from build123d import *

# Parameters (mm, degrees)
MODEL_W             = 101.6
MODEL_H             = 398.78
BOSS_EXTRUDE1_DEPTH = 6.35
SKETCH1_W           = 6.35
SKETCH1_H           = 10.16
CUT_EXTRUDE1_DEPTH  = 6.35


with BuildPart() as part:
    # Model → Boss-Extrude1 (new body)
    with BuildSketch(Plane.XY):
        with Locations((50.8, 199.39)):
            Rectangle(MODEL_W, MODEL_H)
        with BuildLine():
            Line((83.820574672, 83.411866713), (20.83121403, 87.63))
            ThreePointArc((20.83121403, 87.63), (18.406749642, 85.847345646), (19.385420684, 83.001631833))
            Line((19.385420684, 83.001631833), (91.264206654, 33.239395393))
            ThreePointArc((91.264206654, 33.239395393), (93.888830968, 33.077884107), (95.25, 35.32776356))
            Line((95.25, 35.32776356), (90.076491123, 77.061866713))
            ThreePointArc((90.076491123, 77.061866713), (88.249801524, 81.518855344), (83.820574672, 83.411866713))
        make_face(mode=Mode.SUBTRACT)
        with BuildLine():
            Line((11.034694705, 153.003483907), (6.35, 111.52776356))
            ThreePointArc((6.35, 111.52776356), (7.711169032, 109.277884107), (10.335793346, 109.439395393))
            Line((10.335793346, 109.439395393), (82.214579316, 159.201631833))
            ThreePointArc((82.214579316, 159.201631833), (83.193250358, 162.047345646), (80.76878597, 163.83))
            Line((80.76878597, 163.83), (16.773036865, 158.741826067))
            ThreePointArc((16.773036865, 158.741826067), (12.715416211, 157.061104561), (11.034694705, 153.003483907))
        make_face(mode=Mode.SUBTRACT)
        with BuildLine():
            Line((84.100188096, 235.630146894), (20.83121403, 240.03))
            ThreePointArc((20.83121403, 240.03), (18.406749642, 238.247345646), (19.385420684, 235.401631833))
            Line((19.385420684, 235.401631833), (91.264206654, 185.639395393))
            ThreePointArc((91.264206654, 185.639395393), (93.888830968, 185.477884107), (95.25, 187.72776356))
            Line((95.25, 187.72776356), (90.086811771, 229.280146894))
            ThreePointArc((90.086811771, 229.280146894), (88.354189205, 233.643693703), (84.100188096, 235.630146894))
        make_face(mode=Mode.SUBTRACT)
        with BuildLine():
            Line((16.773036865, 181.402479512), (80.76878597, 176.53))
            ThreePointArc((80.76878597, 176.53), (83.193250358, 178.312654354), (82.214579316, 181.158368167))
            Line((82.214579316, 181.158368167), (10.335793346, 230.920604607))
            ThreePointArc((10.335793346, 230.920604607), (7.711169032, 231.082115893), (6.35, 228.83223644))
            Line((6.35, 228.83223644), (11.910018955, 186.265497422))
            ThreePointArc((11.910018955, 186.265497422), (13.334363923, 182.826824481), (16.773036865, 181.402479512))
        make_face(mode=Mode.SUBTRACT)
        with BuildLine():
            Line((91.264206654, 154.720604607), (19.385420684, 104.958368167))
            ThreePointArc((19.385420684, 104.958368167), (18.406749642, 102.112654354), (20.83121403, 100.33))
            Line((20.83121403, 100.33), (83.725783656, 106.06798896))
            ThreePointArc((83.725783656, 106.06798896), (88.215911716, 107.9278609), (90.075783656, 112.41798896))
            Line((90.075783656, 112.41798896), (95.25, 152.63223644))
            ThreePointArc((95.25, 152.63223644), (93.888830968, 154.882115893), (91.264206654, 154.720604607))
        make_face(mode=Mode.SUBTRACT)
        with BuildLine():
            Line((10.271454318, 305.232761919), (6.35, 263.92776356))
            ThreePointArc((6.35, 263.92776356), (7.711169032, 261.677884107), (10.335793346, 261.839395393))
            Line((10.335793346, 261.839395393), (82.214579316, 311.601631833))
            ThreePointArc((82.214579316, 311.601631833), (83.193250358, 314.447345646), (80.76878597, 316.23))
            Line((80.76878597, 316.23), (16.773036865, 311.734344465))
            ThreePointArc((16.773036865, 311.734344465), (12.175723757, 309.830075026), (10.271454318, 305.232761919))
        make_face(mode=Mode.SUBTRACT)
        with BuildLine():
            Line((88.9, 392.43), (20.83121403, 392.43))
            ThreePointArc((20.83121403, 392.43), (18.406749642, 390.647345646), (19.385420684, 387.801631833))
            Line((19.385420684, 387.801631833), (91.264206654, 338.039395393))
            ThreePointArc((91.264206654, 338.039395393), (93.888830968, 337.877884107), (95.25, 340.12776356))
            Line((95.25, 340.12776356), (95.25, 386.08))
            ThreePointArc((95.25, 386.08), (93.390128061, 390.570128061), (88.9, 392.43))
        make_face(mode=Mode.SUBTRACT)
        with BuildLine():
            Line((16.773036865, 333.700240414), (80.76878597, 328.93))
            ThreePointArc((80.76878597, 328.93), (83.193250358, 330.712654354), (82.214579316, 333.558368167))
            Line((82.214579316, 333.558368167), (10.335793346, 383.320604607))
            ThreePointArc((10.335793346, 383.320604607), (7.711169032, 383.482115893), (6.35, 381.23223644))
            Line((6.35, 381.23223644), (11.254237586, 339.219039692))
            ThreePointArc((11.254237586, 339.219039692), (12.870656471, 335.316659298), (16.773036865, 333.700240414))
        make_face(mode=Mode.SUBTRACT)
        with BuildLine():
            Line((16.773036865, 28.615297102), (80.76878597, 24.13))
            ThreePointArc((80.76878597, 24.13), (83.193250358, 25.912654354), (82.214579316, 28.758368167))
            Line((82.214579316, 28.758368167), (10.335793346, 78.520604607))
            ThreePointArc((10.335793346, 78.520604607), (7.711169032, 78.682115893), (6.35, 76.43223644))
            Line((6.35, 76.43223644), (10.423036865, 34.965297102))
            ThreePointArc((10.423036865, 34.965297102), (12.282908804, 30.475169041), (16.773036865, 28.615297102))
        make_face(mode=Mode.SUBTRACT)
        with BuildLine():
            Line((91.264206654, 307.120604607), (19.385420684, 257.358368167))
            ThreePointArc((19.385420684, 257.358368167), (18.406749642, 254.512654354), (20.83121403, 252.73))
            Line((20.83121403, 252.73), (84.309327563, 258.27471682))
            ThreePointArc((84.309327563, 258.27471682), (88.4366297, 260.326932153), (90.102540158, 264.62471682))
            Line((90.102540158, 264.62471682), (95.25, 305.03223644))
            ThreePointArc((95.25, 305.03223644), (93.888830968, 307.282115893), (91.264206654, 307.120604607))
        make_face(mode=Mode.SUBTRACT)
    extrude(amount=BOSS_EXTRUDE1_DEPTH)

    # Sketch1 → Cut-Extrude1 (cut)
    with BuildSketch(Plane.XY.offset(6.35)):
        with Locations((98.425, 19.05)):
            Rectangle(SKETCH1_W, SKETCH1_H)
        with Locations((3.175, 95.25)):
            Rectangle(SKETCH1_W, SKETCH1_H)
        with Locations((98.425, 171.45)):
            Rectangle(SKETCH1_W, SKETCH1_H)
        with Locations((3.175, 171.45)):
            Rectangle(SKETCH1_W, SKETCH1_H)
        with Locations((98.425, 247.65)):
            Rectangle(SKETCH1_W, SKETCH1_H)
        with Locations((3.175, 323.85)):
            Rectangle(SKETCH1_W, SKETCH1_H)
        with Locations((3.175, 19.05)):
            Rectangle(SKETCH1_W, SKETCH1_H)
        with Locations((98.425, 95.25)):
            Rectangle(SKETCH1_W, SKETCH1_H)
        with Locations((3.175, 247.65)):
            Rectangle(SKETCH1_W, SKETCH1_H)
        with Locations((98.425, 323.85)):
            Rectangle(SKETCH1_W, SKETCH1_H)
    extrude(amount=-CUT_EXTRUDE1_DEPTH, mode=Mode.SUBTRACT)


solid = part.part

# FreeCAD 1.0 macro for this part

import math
import FreeCAD as App
import Part
import Sketcher

V = App.Vector
Q = App.Units.Quantity

doc = App.newDocument("Part")
body = doc.addObject("PartDesign::Body", "Body")

# Sketch on XY plane
sketch1 = body.newObject("Sketcher::SketchObject", "Sketch")
sketch1.AttachmentSupport = (doc.getObject("XY_Plane"), [""])
sketch1.MapMode = "FlatFace"
sketch1.addGeometry([
    Part.LineSegment(V(0, 398.78, 0), V(0, 0, 0)),  # 0
    Part.LineSegment(V(0, 0, 0), V(101.6, 0, 0)),  # 1
    Part.LineSegment(V(101.6, 0, 0), V(101.6, 398.78, 0)),  # 2
    Part.LineSegment(V(101.6, 398.78, 0), V(0, 398.78, 0)),  # 3
    Part.LineSegment(V(80.768786, 24.13, 0), V(16.773037, 28.615297, 0)),  # 4
    Part.ArcOfCircle(Part.Circle(V(16.773037, 34.965297, 0), V(0, 0, 1), 6.35), math.radians(180), math.radians(270)),  # 5
    Part.LineSegment(V(10.423037, 34.965297, 0), V(6.35, 76.432236, 0)),  # 6
    Part.ArcOfCircle(Part.Circle(V(8.89, 76.432236, 0), V(0, 0, 1), 2.54), math.radians(55.304846), math.radians(180)),  # 7
    Part.LineSegment(V(10.335793, 78.520605, 0), V(82.214579, 28.758368, 0)),  # 8
    Part.ArcOfCircle(Part.Circle(V(80.768786, 26.67, 0), V(0, 0, 1), 2.54), math.radians(-90), math.radians(55.304846)),  # 9
    Part.LineSegment(V(6.35, 111.527764, 0), V(11.034695, 153.003484, 0)),  # 10
    Part.ArcOfCircle(Part.Circle(V(16.773037, 153.003484, 0), V(0, 0, 1), 5.738342), math.radians(90), math.radians(180)),  # 11
    Part.LineSegment(V(16.773037, 158.741826, 0), V(80.768786, 163.83, 0)),  # 12
    Part.ArcOfCircle(Part.Circle(V(80.768786, 161.29, 0), V(0, 0, 1), 2.54), math.radians(-55.304846), math.radians(90)),  # 13
    Part.LineSegment(V(82.214579, 159.201632, 0), V(10.335793, 109.439395, 0)),  # 14
    Part.ArcOfCircle(Part.Circle(V(8.89, 111.527764, 0), V(0, 0, 1), 2.54), math.radians(180), math.radians(304.695154)),  # 15
    Part.LineSegment(V(80.768786, 176.53, 0), V(16.773037, 181.40248, 0)),  # 16
    Part.ArcOfCircle(Part.Circle(V(16.773037, 186.265497, 0), V(0, 0, 1), 4.863018), math.radians(180), math.radians(270)),  # 17
    Part.LineSegment(V(11.910019, 186.265497, 0), V(6.35, 228.832236, 0)),  # 18
    Part.ArcOfCircle(Part.Circle(V(8.89, 228.832236, 0), V(0, 0, 1), 2.54), math.radians(55.304846), math.radians(180)),  # 19
    Part.LineSegment(V(10.335793, 230.920605, 0), V(82.214579, 181.158368, 0)),  # 20
    Part.ArcOfCircle(Part.Circle(V(80.768786, 179.07, 0), V(0, 0, 1), 2.54), math.radians(-90), math.radians(55.304846)),  # 21
    Part.LineSegment(V(20.831214, 87.63, 0), V(83.820575, 83.411867, 0)),  # 22
    Part.ArcOfCircle(Part.Circle(V(83.725784, 77.061867, 0), V(0, 0, 1), 6.350707), math.radians(0), math.radians(89.144768)),  # 23
    Part.LineSegment(V(90.076491, 77.061867, 0), V(95.25, 35.327764, 0)),  # 24
    Part.ArcOfCircle(Part.Circle(V(92.71, 35.327764, 0), V(0, 0, 1), 2.54), math.radians(-124.695154), math.radians(0)),  # 25
    Part.LineSegment(V(91.264207, 33.239395, 0), V(19.385421, 83.001632, 0)),  # 26
    Part.ArcOfCircle(Part.Circle(V(20.831214, 85.09, 0), V(0, 0, 1), 2.54), math.radians(90), math.radians(235.304846)),  # 27
    Part.LineSegment(V(19.385421, 104.958368, 0), V(91.264207, 154.720605, 0)),  # 28
    Part.ArcOfCircle(Part.Circle(V(92.71, 152.632236, 0), V(0, 0, 1), 2.54), math.radians(0), math.radians(124.695154)),  # 29
    Part.LineSegment(V(95.25, 152.632236, 0), V(90.075784, 112.417989, 0)),  # 30
    Part.ArcOfCircle(Part.Circle(V(83.725784, 112.417989, 0), V(0, 0, 1), 6.35), math.radians(-90), math.radians(0)),  # 31
    Part.LineSegment(V(83.725784, 106.067989, 0), V(20.831214, 100.33, 0)),  # 32
    Part.ArcOfCircle(Part.Circle(V(20.831214, 102.87, 0), V(0, 0, 1), 2.54), math.radians(124.695154), math.radians(270)),  # 33
    Part.LineSegment(V(6.35, 263.927764, 0), V(10.271454, 305.232762, 0)),  # 34
    Part.ArcOfCircle(Part.Circle(V(16.773037, 305.232762, 0), V(0, 0, 1), 6.501583), math.radians(90), math.radians(180)),  # 35
    Part.LineSegment(V(16.773037, 311.734344, 0), V(80.768786, 316.23, 0)),  # 36
    Part.ArcOfCircle(Part.Circle(V(80.768786, 313.69, 0), V(0, 0, 1), 2.54), math.radians(-55.304846), math.radians(90)),  # 37
    Part.LineSegment(V(82.214579, 311.601632, 0), V(10.335793, 261.839395, 0)),  # 38
    Part.ArcOfCircle(Part.Circle(V(8.89, 263.927764, 0), V(0, 0, 1), 2.54), math.radians(180), math.radians(304.695154)),  # 39
    Part.LineSegment(V(80.768786, 328.93, 0), V(16.773037, 333.70024, 0)),  # 40
    Part.ArcOfCircle(Part.Circle(V(16.773037, 339.21904, 0), V(0, 0, 1), 5.518799), math.radians(180), math.radians(270)),  # 41
    Part.LineSegment(V(11.254238, 339.21904, 0), V(6.35, 381.232236, 0)),  # 42
    Part.ArcOfCircle(Part.Circle(V(8.89, 381.232236, 0), V(0, 0, 1), 2.54), math.radians(55.304846), math.radians(180)),  # 43
    Part.LineSegment(V(10.335793, 383.320605, 0), V(82.214579, 333.558368, 0)),  # 44
    Part.ArcOfCircle(Part.Circle(V(80.768786, 331.47, 0), V(0, 0, 1), 2.54), math.radians(-90), math.radians(55.304846)),  # 45
    Part.LineSegment(V(20.831214, 240.03, 0), V(84.100188, 235.630147, 0)),  # 46
    Part.ArcOfCircle(Part.Circle(V(83.725784, 229.280147, 0), V(0, 0, 1), 6.361028), math.radians(0), math.radians(86.625671)),  # 47
    Part.LineSegment(V(90.086812, 229.280147, 0), V(95.25, 187.727764, 0)),  # 48
    Part.ArcOfCircle(Part.Circle(V(92.71, 187.727764, 0), V(0, 0, 1), 2.54), math.radians(-124.695154), math.radians(0)),  # 49
    Part.LineSegment(V(91.264207, 185.639395, 0), V(19.385421, 235.401632, 0)),  # 50
    Part.ArcOfCircle(Part.Circle(V(20.831214, 237.49, 0), V(0, 0, 1), 2.54), math.radians(90), math.radians(235.304846)),  # 51
    Part.LineSegment(V(19.385421, 257.358368, 0), V(91.264207, 307.120605, 0)),  # 52
    Part.ArcOfCircle(Part.Circle(V(92.71, 305.032236, 0), V(0, 0, 1), 2.54), math.radians(0), math.radians(124.695154)),  # 53
    Part.LineSegment(V(95.25, 305.032236, 0), V(90.10254, 264.624717, 0)),  # 54
    Part.ArcOfCircle(Part.Circle(V(83.725784, 264.624717, 0), V(0, 0, 1), 6.376757), math.radians(-84.749455), math.radians(0)),  # 55
    Part.LineSegment(V(84.309328, 258.274717, 0), V(20.831214, 252.73, 0)),  # 56
    Part.ArcOfCircle(Part.Circle(V(20.831214, 255.27, 0), V(0, 0, 1), 2.54), math.radians(124.695154), math.radians(270)),  # 57
    Part.LineSegment(V(20.831214, 392.43, 0), V(88.9, 392.43, 0)),  # 58
    Part.ArcOfCircle(Part.Circle(V(88.9, 386.08, 0), V(0, 0, 1), 6.35), math.radians(0), math.radians(90)),  # 59
    Part.LineSegment(V(95.25, 386.08, 0), V(95.25, 340.127764, 0)),  # 60
    Part.ArcOfCircle(Part.Circle(V(92.71, 340.127764, 0), V(0, 0, 1), 2.54), math.radians(-124.695154), math.radians(0)),  # 61
    Part.LineSegment(V(91.264207, 338.039395, 0), V(19.385421, 387.801632, 0)),  # 62
    Part.ArcOfCircle(Part.Circle(V(20.831214, 389.89, 0), V(0, 0, 1), 2.54), math.radians(90), math.radians(235.304846)),  # 63
], False)
sketch1.addConstraint([
    Sketcher.Constraint("Coincident", 0, 2, 1, 1),
    Sketcher.Constraint("Coincident", 1, 2, 2, 1),
    Sketcher.Constraint("Coincident", 2, 2, 3, 1),
    Sketcher.Constraint("Coincident", 3, 2, 0, 1),
    Sketcher.Constraint("Coincident", 4, 2, 5, 2),
    Sketcher.Constraint("Coincident", 5, 1, 6, 1),
    Sketcher.Constraint("Coincident", 6, 2, 7, 2),
    Sketcher.Constraint("Tangent", 7, 1, 8, 1),
    Sketcher.Constraint("Tangent", 8, 2, 9, 2),
    Sketcher.Constraint("Coincident", 9, 1, 4, 1),
    Sketcher.Constraint("Coincident", 10, 2, 11, 2),
    Sketcher.Constraint("Coincident", 11, 1, 12, 1),
    Sketcher.Constraint("Coincident", 12, 2, 13, 2),
    Sketcher.Constraint("Tangent", 13, 1, 14, 1),
    Sketcher.Constraint("Tangent", 14, 2, 15, 2),
    Sketcher.Constraint("Coincident", 15, 1, 10, 1),
    Sketcher.Constraint("Coincident", 16, 2, 17, 2),
    Sketcher.Constraint("Coincident", 17, 1, 18, 1),
    Sketcher.Constraint("Coincident", 18, 2, 19, 2),
    Sketcher.Constraint("Tangent", 19, 1, 20, 1),
    Sketcher.Constraint("Tangent", 20, 2, 21, 2),
    Sketcher.Constraint("Coincident", 21, 1, 16, 1),
    Sketcher.Constraint("Coincident", 22, 2, 23, 2),
    Sketcher.Constraint("Coincident", 23, 1, 24, 1),
    Sketcher.Constraint("Coincident", 24, 2, 25, 2),
    Sketcher.Constraint("Tangent", 25, 1, 26, 1),
    Sketcher.Constraint("Tangent", 26, 2, 27, 2),
    Sketcher.Constraint("Coincident", 27, 1, 22, 1),
    Sketcher.Constraint("Tangent", 28, 2, 29, 2),
    Sketcher.Constraint("Coincident", 29, 1, 30, 1),
    Sketcher.Constraint("Coincident", 30, 2, 31, 2),
    Sketcher.Constraint("Coincident", 31, 1, 32, 1),
    Sketcher.Constraint("Coincident", 32, 2, 33, 2),
    Sketcher.Constraint("Tangent", 33, 1, 28, 1),
    Sketcher.Constraint("Coincident", 34, 2, 35, 2),
    Sketcher.Constraint("Coincident", 35, 1, 36, 1),
    Sketcher.Constraint("Coincident", 36, 2, 37, 2),
    Sketcher.Constraint("Tangent", 37, 1, 38, 1),
    Sketcher.Constraint("Tangent", 38, 2, 39, 2),
    Sketcher.Constraint("Coincident", 39, 1, 34, 1),
    Sketcher.Constraint("Coincident", 40, 2, 41, 2),
    Sketcher.Constraint("Coincident", 41, 1, 42, 1),
    Sketcher.Constraint("Coincident", 42, 2, 43, 2),
    Sketcher.Constraint("Tangent", 43, 1, 44, 1),
    Sketcher.Constraint("Tangent", 44, 2, 45, 2),
    Sketcher.Constraint("Coincident", 45, 1, 40, 1),
    Sketcher.Constraint("Coincident", 46, 2, 47, 2),
    Sketcher.Constraint("Coincident", 47, 1, 48, 1),
    Sketcher.Constraint("Coincident", 48, 2, 49, 2),
    Sketcher.Constraint("Tangent", 49, 1, 50, 1),
    Sketcher.Constraint("Tangent", 50, 2, 51, 2),
    Sketcher.Constraint("Coincident", 51, 1, 46, 1),
    Sketcher.Constraint("Tangent", 52, 2, 53, 2),
    Sketcher.Constraint("Coincident", 53, 1, 54, 1),
    Sketcher.Constraint("Coincident", 54, 2, 55, 2),
    Sketcher.Constraint("Coincident", 55, 1, 56, 1),
    Sketcher.Constraint("Coincident", 56, 2, 57, 2),
    Sketcher.Constraint("Tangent", 57, 1, 52, 1),
    Sketcher.Constraint("Tangent", 58, 2, 59, 2),
    Sketcher.Constraint("Tangent", 59, 1, 60, 1),
    Sketcher.Constraint("Tangent", 60, 2, 61, 2),
    Sketcher.Constraint("Tangent", 61, 1, 62, 1),
    Sketcher.Constraint("Tangent", 62, 2, 63, 2),
    Sketcher.Constraint("Tangent", 63, 1, 58, 1),
    Sketcher.Constraint("Vertical", 0),
    Sketcher.Constraint("Horizontal", 1),
    Sketcher.Constraint("Vertical", 2),
    Sketcher.Constraint("Horizontal", 3),
    Sketcher.Constraint("Horizontal", 58),
    Sketcher.Constraint("Vertical", 60),
    Sketcher.Constraint("Coincident", 0, 2, -1, 1),
    Sketcher.Constraint("Equal", 7, 9),
    Sketcher.Constraint("Equal", 9, 13),
    Sketcher.Constraint("Equal", 13, 15),
    Sketcher.Constraint("Equal", 15, 19),
    Sketcher.Constraint("Equal", 19, 21),
    Sketcher.Constraint("Equal", 21, 25),
    Sketcher.Constraint("Equal", 25, 27),
    Sketcher.Constraint("Equal", 27, 29),
    Sketcher.Constraint("Equal", 5, 31),
    Sketcher.Constraint("Equal", 29, 33),
    Sketcher.Constraint("Equal", 33, 37),
    Sketcher.Constraint("Equal", 37, 39),
    Sketcher.Constraint("Equal", 39, 43),
    Sketcher.Constraint("Equal", 43, 45),
    Sketcher.Constraint("Equal", 45, 49),
    Sketcher.Constraint("Equal", 49, 51),
    Sketcher.Constraint("Equal", 51, 53),
    Sketcher.Constraint("Equal", 53, 57),
    Sketcher.Constraint("Equal", 31, 59),
    Sketcher.Constraint("Equal", 57, 61),
    Sketcher.Constraint("Equal", 61, 63),
    Sketcher.Constraint("Parallel", 8, 20),
    Sketcher.Constraint("Parallel", 20, 26),
    Sketcher.Constraint("Parallel", 14, 28),
    Sketcher.Constraint("Parallel", 28, 38),
    Sketcher.Constraint("Parallel", 26, 44),
    Sketcher.Constraint("Parallel", 44, 50),
    Sketcher.Constraint("Parallel", 38, 52),
    Sketcher.Constraint("Parallel", 50, 62),
    Sketcher.Constraint("Horizontal", 7, 3, 6, 2),
    Sketcher.Constraint("Horizontal", 11, 3, 10, 2),
    Sketcher.Constraint("Horizontal", 19, 3, 18, 2),
    Sketcher.Constraint("Horizontal", 25, 3, 24, 2),
    Sketcher.Constraint("Horizontal", 31, 3, 30, 2),
    Sketcher.Constraint("Horizontal", 35, 3, 34, 2),
    Sketcher.Constraint("Horizontal", 43, 3, 42, 2),
    Sketcher.Constraint("Horizontal", 49, 3, 48, 2),
    Sketcher.Constraint("Horizontal", 55, 3, 54, 2),
    Sketcher.Constraint("Vertical", 5, 3, 11, 3),
    Sketcher.Constraint("Vertical", 9, 3, 13, 3),
    Sketcher.Constraint("Vertical", 7, 3, 15, 3),
    Sketcher.Constraint("Vertical", 11, 3, 17, 3),
    Sketcher.Constraint("Vertical", 15, 3, 19, 3),
    Sketcher.Constraint("Vertical", 13, 3, 21, 3),
    Sketcher.Constraint("Vertical", 25, 3, 29, 3),
    Sketcher.Constraint("Vertical", 23, 3, 31, 3),
    Sketcher.Constraint("Vertical", 27, 3, 33, 3),
    Sketcher.Constraint("Vertical", 17, 3, 35, 3),
    Sketcher.Constraint("Vertical", 21, 3, 37, 3),
    Sketcher.Constraint("Vertical", 19, 3, 39, 3),
    Sketcher.Constraint("Vertical", 35, 3, 41, 3),
    Sketcher.Constraint("Vertical", 39, 3, 43, 3),
    Sketcher.Constraint("Vertical", 37, 3, 45, 3),
    Sketcher.Constraint("Vertical", 31, 3, 47, 3),
    Sketcher.Constraint("Vertical", 29, 3, 49, 3),
    Sketcher.Constraint("Vertical", 33, 3, 51, 3),
    Sketcher.Constraint("Vertical", 49, 3, 53, 3),
    Sketcher.Constraint("Vertical", 47, 3, 55, 3),
    Sketcher.Constraint("Vertical", 51, 3, 57, 3),
    Sketcher.Constraint("Vertical", 53, 3, 61, 3),
    Sketcher.Constraint("Vertical", 57, 3, 63, 3),
    Sketcher.Constraint("Vertical", 41, 3, 4, 2),
    Sketcher.Constraint("Vertical", 45, 3, 9, 1),
    Sketcher.Constraint("Vertical", 4, 2, 11, 1),
    Sketcher.Constraint("Vertical", 9, 1, 12, 2),
    Sketcher.Constraint("Vertical", 8, 2, 13, 1),
    Sketcher.Constraint("Vertical", 11, 1, 16, 2),
    Sketcher.Constraint("Vertical", 12, 2, 21, 1),
    Sketcher.Constraint("Vertical", 63, 3, 27, 1),
    Sketcher.Constraint("Vertical", 55, 3, 31, 1),
    Sketcher.Constraint("Vertical", 27, 1, 32, 2),
    Sketcher.Constraint("Vertical", 16, 2, 35, 1),
    Sketcher.Constraint("Vertical", 21, 1, 36, 2),
    Sketcher.Constraint("Vertical", 35, 1, 40, 2),
    Sketcher.Constraint("Vertical", 36, 2, 45, 1),
    Sketcher.Constraint("Vertical", 32, 2, 51, 1),
    Sketcher.Constraint("Vertical", 51, 1, 56, 2),
    Sketcher.Constraint("Equal", 20, 26),
    Sketcher.Constraint("Radius", 7, Q("0.1 in")),
    Sketcher.Constraint("DistanceX", 1, 1, 1, 2, Q("4 in")),
    Sketcher.Constraint("Radius", 5, Q("0.25 in")),
    Sketcher.Constraint("DistanceY", 0, 2, 0, 1, Q("15.7 in")),
    Sketcher.Constraint("DistanceX", -1, 1, 59, 3, Q("3.5 in")),
    Sketcher.Constraint("DistanceY", -1, 1, 59, 3, Q("15.2 in")),
    Sketcher.Constraint("DistanceX", -1, 1, 7, 3, Q("0.35 in")),
    Sketcher.Constraint("DistanceY", -1, 1, 9, 3, Q("1.05 in")),
    Sketcher.Constraint("DistanceY", -1, 1, 13, 3, Q("6.35 in")),
    Sketcher.Constraint("DistanceY", -1, 1, 21, 3, Q("7.05 in")),
    Sketcher.Constraint("DistanceY", -1, 1, 27, 3, Q("3.35 in")),
    Sketcher.Constraint("DistanceY", -1, 1, 33, 3, Q("4.05 in")),
    Sketcher.Constraint("DistanceY", -1, 1, 37, 3, Q("12.35 in")),
    Sketcher.Constraint("DistanceY", -1, 1, 45, 3, Q("13.05 in")),
    Sketcher.Constraint("DistanceY", -1, 1, 51, 3, Q("9.35 in")),
    Sketcher.Constraint("DistanceY", -1, 1, 57, 3, Q("10.05 in")),
    Sketcher.Constraint("Radius", 41, 5.518799),
    Sketcher.Constraint("Radius", 47, 6.361028),
    Sketcher.Constraint("Radius", 11, 5.738342),
    Sketcher.Constraint("Radius", 17, 4.863018),
    Sketcher.Constraint("Radius", 23, 6.350707),
    Sketcher.Constraint("Radius", 35, 6.501583),
    Sketcher.Constraint("Radius", 55, 6.376757),
    Sketcher.Constraint("Distance", 4, 64.152738),
    Sketcher.Constraint("Distance", 8, 87.423338),
    Sketcher.Constraint("Distance", 10, 41.739451),
    Sketcher.Constraint("Distance", 16, 64.18097),
    Sketcher.Constraint("Distance", 22, 63.130438),
    Sketcher.Constraint("Distance", 32, 63.155771),
    Sketcher.Constraint("Distance", 34, 41.49073),
    Sketcher.Constraint("Distance", 40, 64.17329),
    Sketcher.Constraint("DistanceX", 58, 1, 58, 2, 68.068786),
    Sketcher.Constraint("DistanceY", -1, 1, 31, 3, 112.417989),
    Sketcher.Constraint("DistanceY", -1, 1, 35, 3, 305.232762),
    Sketcher.Constraint("DistanceY", -1, 1, 41, 3, 339.21904),
    Sketcher.Constraint("DistanceY", -1, 1, 41, 1, 339.21904),
    Sketcher.Constraint("DistanceX", -1, 1, 46, 2, 84.100188),
    Sketcher.Constraint("Distance", 6, 41.666494),
    Sketcher.Constraint("Distance", 12, 64.197706),
    Sketcher.Constraint("Distance", 18, 42.928325),
    Sketcher.Constraint("Distance", 24, 42.053544),
    Sketcher.Constraint("Distance", 30, 40.545755),
    Sketcher.Constraint("Distance", 46, 63.421777),
    Sketcher.Constraint("Distance", 48, 41.871937),
    Sketcher.Constraint("Distance", 54, 40.734064),
    Sketcher.Constraint("Distance", 56, 63.719815),
    Sketcher.Constraint("DistanceY", -1, 1, 23, 3, 77.061867),
    Sketcher.Constraint("DistanceY", -1, 1, 55, 3, 264.624717),
])
pad1 = body.newObject("PartDesign::Pad", "Pad")
pad1.Profile = sketch1
pad1.Length = Q("0.25 in")

# Sketch on XY plane
sketch2 = body.newObject("Sketcher::SketchObject", "Sketch001")
sketch2.AttachmentSupport = (doc.getObject("XY_Plane"), [""])
sketch2.MapMode = "FlatFace"
sketch2.AttachmentOffset = App.Placement(V(0, 0, 0.25 * 25.4), App.Rotation())
sketch2.addGeometry([
    Part.LineSegment(V(95.25, 24.13, 0), V(95.25, 13.97, 0)),  # 0
    Part.LineSegment(V(95.25, 13.97, 0), V(101.6, 13.97, 0)),  # 1
    Part.LineSegment(V(101.6, 13.97, 0), V(101.6, 24.13, 0)),  # 2
    Part.LineSegment(V(101.6, 24.13, 0), V(95.25, 24.13, 0)),  # 3
    Part.LineSegment(V(0, 100.33, 0), V(0, 90.17, 0)),  # 4
    Part.LineSegment(V(0, 90.17, 0), V(6.35, 90.17, 0)),  # 5
    Part.LineSegment(V(6.35, 90.17, 0), V(6.35, 100.33, 0)),  # 6
    Part.LineSegment(V(6.35, 100.33, 0), V(0, 100.33, 0)),  # 7
    Part.LineSegment(V(95.25, 176.53, 0), V(95.25, 166.37, 0)),  # 8
    Part.LineSegment(V(95.25, 166.37, 0), V(101.6, 166.37, 0)),  # 9
    Part.LineSegment(V(101.6, 166.37, 0), V(101.6, 176.53, 0)),  # 10
    Part.LineSegment(V(101.6, 176.53, 0), V(95.25, 176.53, 0)),  # 11
    Part.LineSegment(V(0, 176.53, 0), V(0, 166.37, 0)),  # 12
    Part.LineSegment(V(0, 166.37, 0), V(6.35, 166.37, 0)),  # 13
    Part.LineSegment(V(6.35, 166.37, 0), V(6.35, 176.53, 0)),  # 14
    Part.LineSegment(V(6.35, 176.53, 0), V(0, 176.53, 0)),  # 15
    Part.LineSegment(V(95.25, 252.73, 0), V(95.25, 242.57, 0)),  # 16
    Part.LineSegment(V(95.25, 242.57, 0), V(101.6, 242.57, 0)),  # 17
    Part.LineSegment(V(101.6, 242.57, 0), V(101.6, 252.73, 0)),  # 18
    Part.LineSegment(V(101.6, 252.73, 0), V(95.25, 252.73, 0)),  # 19
    Part.LineSegment(V(0, 328.93, 0), V(0, 318.77, 0)),  # 20
    Part.LineSegment(V(0, 318.77, 0), V(6.35, 318.77, 0)),  # 21
    Part.LineSegment(V(6.35, 318.77, 0), V(6.35, 328.93, 0)),  # 22
    Part.LineSegment(V(6.35, 328.93, 0), V(0, 328.93, 0)),  # 23
    Part.LineSegment(V(0, 24.13, 0), V(0, 13.97, 0)),  # 24
    Part.LineSegment(V(0, 13.97, 0), V(6.35, 13.97, 0)),  # 25
    Part.LineSegment(V(6.35, 13.97, 0), V(6.35, 24.13, 0)),  # 26
    Part.LineSegment(V(6.35, 24.13, 0), V(0, 24.13, 0)),  # 27
    Part.LineSegment(V(95.25, 100.33, 0), V(95.25, 90.17, 0)),  # 28
    Part.LineSegment(V(95.25, 90.17, 0), V(101.6, 90.17, 0)),  # 29
    Part.LineSegment(V(101.6, 90.17, 0), V(101.6, 100.33, 0)),  # 30
    Part.LineSegment(V(101.6, 100.33, 0), V(95.25, 100.33, 0)),  # 31
    Part.LineSegment(V(0, 252.73, 0), V(0, 242.57, 0)),  # 32
    Part.LineSegment(V(0, 242.57, 0), V(6.35, 242.57, 0)),  # 33
    Part.LineSegment(V(6.35, 242.57, 0), V(6.35, 252.73, 0)),  # 34
    Part.LineSegment(V(6.35, 252.73, 0), V(0, 252.73, 0)),  # 35
    Part.LineSegment(V(95.25, 328.93, 0), V(95.25, 318.77, 0)),  # 36
    Part.LineSegment(V(95.25, 318.77, 0), V(101.6, 318.77, 0)),  # 37
    Part.LineSegment(V(101.6, 318.77, 0), V(101.6, 328.93, 0)),  # 38
    Part.LineSegment(V(101.6, 328.93, 0), V(95.25, 328.93, 0)),  # 39
], False)
sketch2.addConstraint([
    Sketcher.Constraint("Coincident", 0, 2, 1, 1),
    Sketcher.Constraint("Coincident", 1, 2, 2, 1),
    Sketcher.Constraint("Coincident", 2, 2, 3, 1),
    Sketcher.Constraint("Coincident", 3, 2, 0, 1),
    Sketcher.Constraint("Coincident", 4, 2, 5, 1),
    Sketcher.Constraint("Coincident", 5, 2, 6, 1),
    Sketcher.Constraint("Coincident", 6, 2, 7, 1),
    Sketcher.Constraint("Coincident", 7, 2, 4, 1),
    Sketcher.Constraint("Coincident", 8, 2, 9, 1),
    Sketcher.Constraint("Coincident", 9, 2, 10, 1),
    Sketcher.Constraint("Coincident", 10, 2, 11, 1),
    Sketcher.Constraint("Coincident", 11, 2, 8, 1),
    Sketcher.Constraint("Coincident", 12, 2, 13, 1),
    Sketcher.Constraint("Coincident", 13, 2, 14, 1),
    Sketcher.Constraint("Coincident", 14, 2, 15, 1),
    Sketcher.Constraint("Coincident", 15, 2, 12, 1),
    Sketcher.Constraint("Coincident", 16, 2, 17, 1),
    Sketcher.Constraint("Coincident", 17, 2, 18, 1),
    Sketcher.Constraint("Coincident", 18, 2, 19, 1),
    Sketcher.Constraint("Coincident", 19, 2, 16, 1),
    Sketcher.Constraint("Coincident", 20, 2, 21, 1),
    Sketcher.Constraint("Coincident", 21, 2, 22, 1),
    Sketcher.Constraint("Coincident", 22, 2, 23, 1),
    Sketcher.Constraint("Coincident", 23, 2, 20, 1),
    Sketcher.Constraint("Coincident", 24, 2, 25, 1),
    Sketcher.Constraint("Coincident", 25, 2, 26, 1),
    Sketcher.Constraint("Coincident", 26, 2, 27, 1),
    Sketcher.Constraint("Coincident", 27, 2, 24, 1),
    Sketcher.Constraint("Coincident", 28, 2, 29, 1),
    Sketcher.Constraint("Coincident", 29, 2, 30, 1),
    Sketcher.Constraint("Coincident", 30, 2, 31, 1),
    Sketcher.Constraint("Coincident", 31, 2, 28, 1),
    Sketcher.Constraint("Coincident", 32, 2, 33, 1),
    Sketcher.Constraint("Coincident", 33, 2, 34, 1),
    Sketcher.Constraint("Coincident", 34, 2, 35, 1),
    Sketcher.Constraint("Coincident", 35, 2, 32, 1),
    Sketcher.Constraint("Coincident", 36, 2, 37, 1),
    Sketcher.Constraint("Coincident", 37, 2, 38, 1),
    Sketcher.Constraint("Coincident", 38, 2, 39, 1),
    Sketcher.Constraint("Coincident", 39, 2, 36, 1),
    Sketcher.Constraint("Vertical", 0),
    Sketcher.Constraint("Horizontal", 1),
    Sketcher.Constraint("Vertical", 2),
    Sketcher.Constraint("Horizontal", 3),
    Sketcher.Constraint("Vertical", 4),
    Sketcher.Constraint("Horizontal", 5),
    Sketcher.Constraint("Vertical", 6),
    Sketcher.Constraint("Horizontal", 7),
    Sketcher.Constraint("Vertical", 8),
    Sketcher.Constraint("Horizontal", 9),
    Sketcher.Constraint("Vertical", 10),
    Sketcher.Constraint("Horizontal", 11),
    Sketcher.Constraint("Vertical", 12),
    Sketcher.Constraint("Horizontal", 13),
    Sketcher.Constraint("Vertical", 14),
    Sketcher.Constraint("Horizontal", 15),
    Sketcher.Constraint("Vertical", 16),
    Sketcher.Constraint("Horizontal", 17),
    Sketcher.Constraint("Vertical", 18),
    Sketcher.Constraint("Horizontal", 19),
    Sketcher.Constraint("Vertical", 20),
    Sketcher.Constraint("Horizontal", 21),
    Sketcher.Constraint("Vertical", 22),
    Sketcher.Constraint("Horizontal", 23),
    Sketcher.Constraint("Vertical", 24),
    Sketcher.Constraint("Horizontal", 25),
    Sketcher.Constraint("Vertical", 26),
    Sketcher.Constraint("Horizontal", 27),
    Sketcher.Constraint("Vertical", 28),
    Sketcher.Constraint("Horizontal", 29),
    Sketcher.Constraint("Vertical", 30),
    Sketcher.Constraint("Horizontal", 31),
    Sketcher.Constraint("Vertical", 32),
    Sketcher.Constraint("Horizontal", 33),
    Sketcher.Constraint("Vertical", 34),
    Sketcher.Constraint("Horizontal", 35),
    Sketcher.Constraint("Vertical", 36),
    Sketcher.Constraint("Horizontal", 37),
    Sketcher.Constraint("Vertical", 38),
    Sketcher.Constraint("Horizontal", 39),
    Sketcher.Constraint("PointOnObject", 4, 2, -2),
    Sketcher.Constraint("PointOnObject", 12, 2, -2),
    Sketcher.Constraint("PointOnObject", 20, 2, -2),
    Sketcher.Constraint("PointOnObject", 24, 2, -2),
    Sketcher.Constraint("PointOnObject", 32, 2, -2),
    Sketcher.Constraint("Horizontal", 9, 2, 12, 2),
    Sketcher.Constraint("Horizontal", 11, 2, 14, 2),
    Sketcher.Constraint("Horizontal", 1, 2, 24, 2),
    Sketcher.Constraint("Horizontal", 3, 2, 26, 2),
    Sketcher.Constraint("Horizontal", 5, 2, 28, 2),
    Sketcher.Constraint("Horizontal", 7, 2, 30, 2),
    Sketcher.Constraint("Horizontal", 17, 2, 32, 2),
    Sketcher.Constraint("Horizontal", 19, 2, 34, 2),
    Sketcher.Constraint("Horizontal", 21, 2, 36, 2),
    Sketcher.Constraint("Horizontal", 23, 2, 38, 2),
    Sketcher.Constraint("Vertical", 3, 2, 8, 2),
    Sketcher.Constraint("Vertical", 2, 2, 9, 2),
    Sketcher.Constraint("Vertical", 6, 2, 13, 2),
    Sketcher.Constraint("Vertical", 11, 2, 16, 2),
    Sketcher.Constraint("Vertical", 10, 2, 17, 2),
    Sketcher.Constraint("Vertical", 14, 2, 21, 2),
    Sketcher.Constraint("Vertical", 22, 2, 25, 2),
    Sketcher.Constraint("Vertical", 19, 2, 28, 2),
    Sketcher.Constraint("Vertical", 18, 2, 29, 2),
    Sketcher.Constraint("Vertical", 26, 2, 33, 2),
    Sketcher.Constraint("Vertical", 31, 2, 36, 2),
    Sketcher.Constraint("Vertical", 30, 2, 37, 2),
    Sketcher.Constraint("Equal", 3, 5),
    Sketcher.Constraint("Equal", 2, 4),
    Sketcher.Constraint("Equal", 6, 8),
    Sketcher.Constraint("Equal", 14, 16),
    Sketcher.Constraint("Equal", 18, 20),
    Sketcher.Constraint("DistanceY", 0, 2, 0, 1, Q("0.4 in")),
    Sketcher.Constraint("DistanceX", -1, 1, 1, 2, Q("4 in")),
    Sketcher.Constraint("DistanceY", 0, 2, 4, 2, Q("3 in")),
    Sketcher.Constraint("DistanceY", 5, 2, 8, 2, Q("3 in")),
    Sketcher.Constraint("DistanceY", 8, 2, 16, 2, Q("3 in")),
    Sketcher.Constraint("DistanceY", 16, 2, 20, 2, Q("3 in")),
    Sketcher.Constraint("DistanceX", 1, 1, 1, 2, Q("0.25 in")),
    Sketcher.Constraint("DistanceY", -1, 1, 0, 2, Q("0.55 in")),
])
pocket1 = body.newObject("PartDesign::Pocket", "Pocket")
pocket1.Profile = sketch2
pocket1.Length = Q("0.25 in")

doc.recompute()
